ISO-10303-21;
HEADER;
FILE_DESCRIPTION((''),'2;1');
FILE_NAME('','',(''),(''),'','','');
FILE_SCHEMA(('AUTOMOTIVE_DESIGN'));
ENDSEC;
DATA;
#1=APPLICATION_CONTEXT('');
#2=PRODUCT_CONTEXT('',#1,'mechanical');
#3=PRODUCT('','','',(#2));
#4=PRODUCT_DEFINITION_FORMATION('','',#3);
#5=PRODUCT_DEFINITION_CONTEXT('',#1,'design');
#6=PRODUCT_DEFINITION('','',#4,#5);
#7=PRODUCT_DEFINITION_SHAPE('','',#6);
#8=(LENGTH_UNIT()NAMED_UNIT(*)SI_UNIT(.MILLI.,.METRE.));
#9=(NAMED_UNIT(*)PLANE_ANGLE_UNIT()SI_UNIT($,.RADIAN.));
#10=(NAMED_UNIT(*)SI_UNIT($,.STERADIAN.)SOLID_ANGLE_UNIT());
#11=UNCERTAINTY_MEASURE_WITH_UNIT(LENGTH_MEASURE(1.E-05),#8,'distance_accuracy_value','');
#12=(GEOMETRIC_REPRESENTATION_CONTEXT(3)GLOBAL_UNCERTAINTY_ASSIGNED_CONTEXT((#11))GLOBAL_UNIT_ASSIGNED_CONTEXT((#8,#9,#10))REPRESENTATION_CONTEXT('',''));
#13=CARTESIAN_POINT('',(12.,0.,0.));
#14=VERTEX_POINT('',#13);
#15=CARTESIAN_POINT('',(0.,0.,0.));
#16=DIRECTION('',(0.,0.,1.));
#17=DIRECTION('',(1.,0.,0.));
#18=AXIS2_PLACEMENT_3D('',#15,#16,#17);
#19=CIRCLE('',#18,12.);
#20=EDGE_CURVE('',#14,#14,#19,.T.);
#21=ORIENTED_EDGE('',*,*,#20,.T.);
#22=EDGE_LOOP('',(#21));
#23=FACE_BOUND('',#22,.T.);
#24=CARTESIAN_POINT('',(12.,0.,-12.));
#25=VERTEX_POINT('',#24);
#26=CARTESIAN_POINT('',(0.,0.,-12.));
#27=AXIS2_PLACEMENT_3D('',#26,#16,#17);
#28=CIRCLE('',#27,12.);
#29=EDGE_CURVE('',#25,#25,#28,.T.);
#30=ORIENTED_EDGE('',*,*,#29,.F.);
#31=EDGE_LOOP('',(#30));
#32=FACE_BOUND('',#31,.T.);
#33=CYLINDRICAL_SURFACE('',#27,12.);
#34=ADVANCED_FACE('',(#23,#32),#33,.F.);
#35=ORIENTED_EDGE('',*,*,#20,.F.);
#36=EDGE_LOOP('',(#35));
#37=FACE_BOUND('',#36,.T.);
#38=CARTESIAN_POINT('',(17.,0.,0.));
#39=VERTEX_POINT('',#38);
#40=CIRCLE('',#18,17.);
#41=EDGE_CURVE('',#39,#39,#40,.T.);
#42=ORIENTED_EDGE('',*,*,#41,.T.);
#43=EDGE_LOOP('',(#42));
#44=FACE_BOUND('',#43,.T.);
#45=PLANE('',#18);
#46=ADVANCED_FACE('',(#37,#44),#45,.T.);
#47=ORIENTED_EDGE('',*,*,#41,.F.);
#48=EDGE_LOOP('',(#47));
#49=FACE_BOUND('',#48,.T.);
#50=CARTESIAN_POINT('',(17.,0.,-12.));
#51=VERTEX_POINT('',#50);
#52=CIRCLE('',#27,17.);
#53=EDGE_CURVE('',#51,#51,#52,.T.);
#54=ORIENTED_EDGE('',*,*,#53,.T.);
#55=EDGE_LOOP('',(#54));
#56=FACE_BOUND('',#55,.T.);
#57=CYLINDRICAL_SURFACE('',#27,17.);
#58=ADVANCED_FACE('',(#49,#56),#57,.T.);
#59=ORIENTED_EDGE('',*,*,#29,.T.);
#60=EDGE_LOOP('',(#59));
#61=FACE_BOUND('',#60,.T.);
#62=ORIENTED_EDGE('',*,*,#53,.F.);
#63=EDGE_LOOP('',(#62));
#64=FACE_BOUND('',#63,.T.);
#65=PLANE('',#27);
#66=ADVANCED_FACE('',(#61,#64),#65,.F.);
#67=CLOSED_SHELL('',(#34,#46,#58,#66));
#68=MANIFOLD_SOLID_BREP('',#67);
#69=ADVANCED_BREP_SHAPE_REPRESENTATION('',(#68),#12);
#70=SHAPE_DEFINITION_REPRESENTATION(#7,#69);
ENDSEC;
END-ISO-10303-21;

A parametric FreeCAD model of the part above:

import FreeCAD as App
import Part
import Sketcher
from FreeCAD import Vector

doc = App.newDocument("Part")
params = doc.addObject("Spreadsheet::Sheet", "Params")
for row, (alias, value) in enumerate([
    ("sketch1_diameter", "34 mm"),
    ("sketch1_diameter2", "24 mm"),
    ("pad1_length", "12 mm"),
], start=1):
    params.set(f"A{row}", alias)
    params.set(f"B{row}", "=" + value)
    params.setAlias(f"B{row}", alias)

body = doc.addObject("PartDesign::Body", "Body")

# Sketch on XY plane
sketch1 = body.newObject("Sketcher::SketchObject", "Sketch")
sketch1.AttachmentSupport = (doc.getObject("XY_Plane"), [""])
sketch1.MapMode = "FlatFace"
sketch1.addGeometry(Part.Circle(Vector(0, 0, 0), Vector(0, 0, 1), 17), False)
sketch1.addGeometry(Part.Circle(Vector(0, 0, 0), Vector(0, 0, 1), 12), False)
sketch1.addConstraint(Sketcher.Constraint("Coincident", 0, 3, -1, 1))
sketch1.addConstraint(Sketcher.Constraint("Coincident", 1, 3, -1, 1))
sketch1.addConstraint(Sketcher.Constraint("Diameter", 0, 34.0))
sketch1.addConstraint(Sketcher.Constraint("Diameter", 1, 24.0))
sketch1.setExpression("Constraints[2]", "Params.sketch1_diameter")
sketch1.setExpression("Constraints[3]", "Params.sketch1_diameter2")
pad1 = body.newObject("PartDesign::Pad", "Pad")
pad1.Profile = sketch1
pad1.setExpression("Length", "Params.pad1_length")
pad1.Reversed = True

doc.recompute()
